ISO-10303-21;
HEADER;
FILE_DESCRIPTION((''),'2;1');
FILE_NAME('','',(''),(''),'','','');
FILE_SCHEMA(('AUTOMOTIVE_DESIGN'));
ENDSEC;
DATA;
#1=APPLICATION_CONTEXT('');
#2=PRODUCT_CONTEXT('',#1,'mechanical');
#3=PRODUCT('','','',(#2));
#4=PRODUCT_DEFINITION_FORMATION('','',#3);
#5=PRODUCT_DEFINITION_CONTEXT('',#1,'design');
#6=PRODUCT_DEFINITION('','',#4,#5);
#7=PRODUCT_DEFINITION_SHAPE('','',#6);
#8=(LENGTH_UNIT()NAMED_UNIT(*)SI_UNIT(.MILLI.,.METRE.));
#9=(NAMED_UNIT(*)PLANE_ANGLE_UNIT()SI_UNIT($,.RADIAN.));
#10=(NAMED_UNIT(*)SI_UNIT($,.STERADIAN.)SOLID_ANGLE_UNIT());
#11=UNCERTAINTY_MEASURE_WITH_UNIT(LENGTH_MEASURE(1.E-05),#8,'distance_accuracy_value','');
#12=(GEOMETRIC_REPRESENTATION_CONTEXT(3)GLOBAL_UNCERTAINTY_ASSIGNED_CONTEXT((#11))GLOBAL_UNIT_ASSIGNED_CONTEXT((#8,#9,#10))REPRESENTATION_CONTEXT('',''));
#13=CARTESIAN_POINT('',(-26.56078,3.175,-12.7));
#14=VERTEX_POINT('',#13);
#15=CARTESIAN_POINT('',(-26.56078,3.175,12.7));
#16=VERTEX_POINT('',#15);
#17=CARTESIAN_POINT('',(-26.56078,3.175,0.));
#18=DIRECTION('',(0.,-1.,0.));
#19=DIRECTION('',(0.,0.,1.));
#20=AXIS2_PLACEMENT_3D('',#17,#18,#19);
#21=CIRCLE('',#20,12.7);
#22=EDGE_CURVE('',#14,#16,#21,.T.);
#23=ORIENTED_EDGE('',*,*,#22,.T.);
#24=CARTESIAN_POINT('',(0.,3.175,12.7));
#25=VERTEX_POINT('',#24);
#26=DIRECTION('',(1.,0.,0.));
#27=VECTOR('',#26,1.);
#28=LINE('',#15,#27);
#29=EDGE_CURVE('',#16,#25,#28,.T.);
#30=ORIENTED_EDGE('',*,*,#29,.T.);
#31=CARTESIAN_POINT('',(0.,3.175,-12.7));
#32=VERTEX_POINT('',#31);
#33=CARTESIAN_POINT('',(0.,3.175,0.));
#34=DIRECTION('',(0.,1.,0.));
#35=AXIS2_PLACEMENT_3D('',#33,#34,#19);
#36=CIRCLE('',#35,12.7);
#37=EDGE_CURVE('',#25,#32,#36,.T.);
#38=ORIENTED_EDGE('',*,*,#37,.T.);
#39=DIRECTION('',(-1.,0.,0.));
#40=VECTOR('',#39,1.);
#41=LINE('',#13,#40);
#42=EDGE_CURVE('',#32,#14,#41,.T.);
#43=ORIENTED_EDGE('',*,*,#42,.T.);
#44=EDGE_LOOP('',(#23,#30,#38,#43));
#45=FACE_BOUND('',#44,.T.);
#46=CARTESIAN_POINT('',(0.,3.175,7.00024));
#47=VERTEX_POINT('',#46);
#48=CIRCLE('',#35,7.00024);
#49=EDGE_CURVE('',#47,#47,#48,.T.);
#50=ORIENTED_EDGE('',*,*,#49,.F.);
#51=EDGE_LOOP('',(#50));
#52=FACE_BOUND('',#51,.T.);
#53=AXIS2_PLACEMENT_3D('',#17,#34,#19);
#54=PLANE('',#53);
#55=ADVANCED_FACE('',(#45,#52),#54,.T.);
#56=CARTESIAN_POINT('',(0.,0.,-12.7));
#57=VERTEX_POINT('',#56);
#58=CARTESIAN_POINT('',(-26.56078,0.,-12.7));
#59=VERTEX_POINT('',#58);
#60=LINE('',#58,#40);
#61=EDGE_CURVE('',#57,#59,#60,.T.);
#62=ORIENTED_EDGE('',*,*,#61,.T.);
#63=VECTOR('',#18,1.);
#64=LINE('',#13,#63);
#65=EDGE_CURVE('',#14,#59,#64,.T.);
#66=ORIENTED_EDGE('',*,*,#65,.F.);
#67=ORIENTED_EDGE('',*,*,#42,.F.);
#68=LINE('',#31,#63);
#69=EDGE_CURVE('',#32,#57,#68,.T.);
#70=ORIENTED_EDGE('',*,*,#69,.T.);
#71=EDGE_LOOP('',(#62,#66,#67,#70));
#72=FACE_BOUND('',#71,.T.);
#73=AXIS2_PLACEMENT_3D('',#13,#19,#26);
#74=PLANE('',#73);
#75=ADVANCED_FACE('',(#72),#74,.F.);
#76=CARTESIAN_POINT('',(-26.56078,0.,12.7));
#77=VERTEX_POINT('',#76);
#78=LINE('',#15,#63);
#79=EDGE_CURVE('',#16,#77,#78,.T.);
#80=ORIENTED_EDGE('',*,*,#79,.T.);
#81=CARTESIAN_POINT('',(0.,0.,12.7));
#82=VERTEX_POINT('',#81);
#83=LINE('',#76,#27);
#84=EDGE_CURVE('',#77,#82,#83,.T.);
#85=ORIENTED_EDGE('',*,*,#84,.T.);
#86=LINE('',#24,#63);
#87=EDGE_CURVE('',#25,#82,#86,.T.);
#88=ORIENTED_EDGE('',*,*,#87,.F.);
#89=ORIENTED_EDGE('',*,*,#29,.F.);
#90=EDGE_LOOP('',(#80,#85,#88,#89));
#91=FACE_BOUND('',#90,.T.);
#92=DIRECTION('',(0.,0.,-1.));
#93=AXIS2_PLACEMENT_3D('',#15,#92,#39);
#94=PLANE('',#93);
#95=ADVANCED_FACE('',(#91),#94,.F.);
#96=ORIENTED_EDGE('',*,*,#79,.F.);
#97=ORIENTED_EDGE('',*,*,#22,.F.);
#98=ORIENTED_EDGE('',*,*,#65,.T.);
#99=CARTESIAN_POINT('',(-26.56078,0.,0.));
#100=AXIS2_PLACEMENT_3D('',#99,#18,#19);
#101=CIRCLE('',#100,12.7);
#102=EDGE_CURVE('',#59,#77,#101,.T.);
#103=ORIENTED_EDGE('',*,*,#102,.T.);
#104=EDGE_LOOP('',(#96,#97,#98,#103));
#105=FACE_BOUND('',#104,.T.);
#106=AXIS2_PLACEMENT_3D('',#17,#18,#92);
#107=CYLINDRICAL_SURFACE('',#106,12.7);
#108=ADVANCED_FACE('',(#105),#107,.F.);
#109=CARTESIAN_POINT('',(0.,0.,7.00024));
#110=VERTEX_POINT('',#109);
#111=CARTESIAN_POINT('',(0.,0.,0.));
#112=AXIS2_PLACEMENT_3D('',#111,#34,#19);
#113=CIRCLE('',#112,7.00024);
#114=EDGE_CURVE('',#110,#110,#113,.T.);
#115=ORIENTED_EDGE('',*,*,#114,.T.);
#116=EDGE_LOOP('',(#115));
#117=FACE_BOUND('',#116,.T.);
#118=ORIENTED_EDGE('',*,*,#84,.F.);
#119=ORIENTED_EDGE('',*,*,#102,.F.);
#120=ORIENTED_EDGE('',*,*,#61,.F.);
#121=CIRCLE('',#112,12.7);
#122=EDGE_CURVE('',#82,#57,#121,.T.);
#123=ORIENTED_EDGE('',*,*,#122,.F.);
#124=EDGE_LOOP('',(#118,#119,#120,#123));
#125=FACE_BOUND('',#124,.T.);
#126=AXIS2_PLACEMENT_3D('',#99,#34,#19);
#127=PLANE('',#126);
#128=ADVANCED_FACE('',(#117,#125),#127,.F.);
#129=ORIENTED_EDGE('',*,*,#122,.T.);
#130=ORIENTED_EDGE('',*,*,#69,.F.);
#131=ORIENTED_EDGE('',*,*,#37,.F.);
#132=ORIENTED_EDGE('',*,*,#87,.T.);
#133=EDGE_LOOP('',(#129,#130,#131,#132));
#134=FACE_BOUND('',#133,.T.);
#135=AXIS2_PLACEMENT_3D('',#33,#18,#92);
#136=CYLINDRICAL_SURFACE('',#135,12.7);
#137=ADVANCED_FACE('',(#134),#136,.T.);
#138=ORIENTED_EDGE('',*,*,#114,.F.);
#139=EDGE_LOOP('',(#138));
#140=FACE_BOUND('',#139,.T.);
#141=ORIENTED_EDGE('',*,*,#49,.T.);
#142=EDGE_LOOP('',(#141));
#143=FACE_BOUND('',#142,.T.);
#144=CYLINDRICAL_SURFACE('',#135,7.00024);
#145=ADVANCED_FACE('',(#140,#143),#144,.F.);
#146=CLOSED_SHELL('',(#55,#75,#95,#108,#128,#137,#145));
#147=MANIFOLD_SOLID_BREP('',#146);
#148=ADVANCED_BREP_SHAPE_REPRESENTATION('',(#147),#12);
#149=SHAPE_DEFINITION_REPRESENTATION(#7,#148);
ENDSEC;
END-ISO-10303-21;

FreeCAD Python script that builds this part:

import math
import FreeCAD as App
import Part
import Sketcher
Q = App.Units.Quantity

doc = App.newDocument("Part")
body = doc.addObject("PartDesign::Body", "Body")

# Sketch on XZ plane
sketch1 = body.newObject("Sketcher::SketchObject", "Sketch")
sketch1.AttachmentSupport = (doc.getObject("XZ_Plane"), [""])
sketch1.MapMode = "FlatFace"
sketch1.addGeometry([
    Part.LineSegment(App.Vector(0, -13, 0), App.Vector(-27, -13, 0)),  # 0
    Part.ArcOfCircle(Part.Circle(App.Vector(-27, 0, 0), App.Vector(0, 0, 1), 13), math.radians(-90), math.radians(90)),  # 1
    Part.LineSegment(App.Vector(-27, 13, 0), App.Vector(0, 13, 0)),  # 2
    Part.ArcOfCircle(Part.Circle(App.Vector(0, 0, 0), App.Vector(0, 0, 1), 13), math.radians(-90), math.radians(90)),  # 3
    Part.Circle(App.Vector(0, 0, 0), App.Vector(0, 0, 1), 7),  # 4
], False)
sketch1.addConstraint([
    Sketcher.Constraint("Tangent", 0, 2, 1, 1),
    Sketcher.Constraint("Tangent", 1, 2, 2, 1),
    Sketcher.Constraint("Tangent", 2, 2, 3, 2),
    Sketcher.Constraint("Tangent", 3, 1, 0, 1),
    Sketcher.Constraint("Horizontal", 0),
    Sketcher.Constraint("Horizontal", 2),
    Sketcher.Constraint("Coincident", 3, 3, -1, 1),
    Sketcher.Constraint("Coincident", 4, 3, -1, 1),
    Sketcher.Constraint("Radius", 1, Q("0.5 in")),
    Sketcher.Constraint("Diameter", 4, Q("0.5512 in")),
    Sketcher.Constraint("DistanceX", 0, 2, 0, 1, Q("1.0457 in")),
])
pad1 = body.newObject("PartDesign::Pad", "Pad")
pad1.Profile = sketch1
pad1.Length = Q("0.125 in")
pad1.Reversed = True

doc.recompute()
